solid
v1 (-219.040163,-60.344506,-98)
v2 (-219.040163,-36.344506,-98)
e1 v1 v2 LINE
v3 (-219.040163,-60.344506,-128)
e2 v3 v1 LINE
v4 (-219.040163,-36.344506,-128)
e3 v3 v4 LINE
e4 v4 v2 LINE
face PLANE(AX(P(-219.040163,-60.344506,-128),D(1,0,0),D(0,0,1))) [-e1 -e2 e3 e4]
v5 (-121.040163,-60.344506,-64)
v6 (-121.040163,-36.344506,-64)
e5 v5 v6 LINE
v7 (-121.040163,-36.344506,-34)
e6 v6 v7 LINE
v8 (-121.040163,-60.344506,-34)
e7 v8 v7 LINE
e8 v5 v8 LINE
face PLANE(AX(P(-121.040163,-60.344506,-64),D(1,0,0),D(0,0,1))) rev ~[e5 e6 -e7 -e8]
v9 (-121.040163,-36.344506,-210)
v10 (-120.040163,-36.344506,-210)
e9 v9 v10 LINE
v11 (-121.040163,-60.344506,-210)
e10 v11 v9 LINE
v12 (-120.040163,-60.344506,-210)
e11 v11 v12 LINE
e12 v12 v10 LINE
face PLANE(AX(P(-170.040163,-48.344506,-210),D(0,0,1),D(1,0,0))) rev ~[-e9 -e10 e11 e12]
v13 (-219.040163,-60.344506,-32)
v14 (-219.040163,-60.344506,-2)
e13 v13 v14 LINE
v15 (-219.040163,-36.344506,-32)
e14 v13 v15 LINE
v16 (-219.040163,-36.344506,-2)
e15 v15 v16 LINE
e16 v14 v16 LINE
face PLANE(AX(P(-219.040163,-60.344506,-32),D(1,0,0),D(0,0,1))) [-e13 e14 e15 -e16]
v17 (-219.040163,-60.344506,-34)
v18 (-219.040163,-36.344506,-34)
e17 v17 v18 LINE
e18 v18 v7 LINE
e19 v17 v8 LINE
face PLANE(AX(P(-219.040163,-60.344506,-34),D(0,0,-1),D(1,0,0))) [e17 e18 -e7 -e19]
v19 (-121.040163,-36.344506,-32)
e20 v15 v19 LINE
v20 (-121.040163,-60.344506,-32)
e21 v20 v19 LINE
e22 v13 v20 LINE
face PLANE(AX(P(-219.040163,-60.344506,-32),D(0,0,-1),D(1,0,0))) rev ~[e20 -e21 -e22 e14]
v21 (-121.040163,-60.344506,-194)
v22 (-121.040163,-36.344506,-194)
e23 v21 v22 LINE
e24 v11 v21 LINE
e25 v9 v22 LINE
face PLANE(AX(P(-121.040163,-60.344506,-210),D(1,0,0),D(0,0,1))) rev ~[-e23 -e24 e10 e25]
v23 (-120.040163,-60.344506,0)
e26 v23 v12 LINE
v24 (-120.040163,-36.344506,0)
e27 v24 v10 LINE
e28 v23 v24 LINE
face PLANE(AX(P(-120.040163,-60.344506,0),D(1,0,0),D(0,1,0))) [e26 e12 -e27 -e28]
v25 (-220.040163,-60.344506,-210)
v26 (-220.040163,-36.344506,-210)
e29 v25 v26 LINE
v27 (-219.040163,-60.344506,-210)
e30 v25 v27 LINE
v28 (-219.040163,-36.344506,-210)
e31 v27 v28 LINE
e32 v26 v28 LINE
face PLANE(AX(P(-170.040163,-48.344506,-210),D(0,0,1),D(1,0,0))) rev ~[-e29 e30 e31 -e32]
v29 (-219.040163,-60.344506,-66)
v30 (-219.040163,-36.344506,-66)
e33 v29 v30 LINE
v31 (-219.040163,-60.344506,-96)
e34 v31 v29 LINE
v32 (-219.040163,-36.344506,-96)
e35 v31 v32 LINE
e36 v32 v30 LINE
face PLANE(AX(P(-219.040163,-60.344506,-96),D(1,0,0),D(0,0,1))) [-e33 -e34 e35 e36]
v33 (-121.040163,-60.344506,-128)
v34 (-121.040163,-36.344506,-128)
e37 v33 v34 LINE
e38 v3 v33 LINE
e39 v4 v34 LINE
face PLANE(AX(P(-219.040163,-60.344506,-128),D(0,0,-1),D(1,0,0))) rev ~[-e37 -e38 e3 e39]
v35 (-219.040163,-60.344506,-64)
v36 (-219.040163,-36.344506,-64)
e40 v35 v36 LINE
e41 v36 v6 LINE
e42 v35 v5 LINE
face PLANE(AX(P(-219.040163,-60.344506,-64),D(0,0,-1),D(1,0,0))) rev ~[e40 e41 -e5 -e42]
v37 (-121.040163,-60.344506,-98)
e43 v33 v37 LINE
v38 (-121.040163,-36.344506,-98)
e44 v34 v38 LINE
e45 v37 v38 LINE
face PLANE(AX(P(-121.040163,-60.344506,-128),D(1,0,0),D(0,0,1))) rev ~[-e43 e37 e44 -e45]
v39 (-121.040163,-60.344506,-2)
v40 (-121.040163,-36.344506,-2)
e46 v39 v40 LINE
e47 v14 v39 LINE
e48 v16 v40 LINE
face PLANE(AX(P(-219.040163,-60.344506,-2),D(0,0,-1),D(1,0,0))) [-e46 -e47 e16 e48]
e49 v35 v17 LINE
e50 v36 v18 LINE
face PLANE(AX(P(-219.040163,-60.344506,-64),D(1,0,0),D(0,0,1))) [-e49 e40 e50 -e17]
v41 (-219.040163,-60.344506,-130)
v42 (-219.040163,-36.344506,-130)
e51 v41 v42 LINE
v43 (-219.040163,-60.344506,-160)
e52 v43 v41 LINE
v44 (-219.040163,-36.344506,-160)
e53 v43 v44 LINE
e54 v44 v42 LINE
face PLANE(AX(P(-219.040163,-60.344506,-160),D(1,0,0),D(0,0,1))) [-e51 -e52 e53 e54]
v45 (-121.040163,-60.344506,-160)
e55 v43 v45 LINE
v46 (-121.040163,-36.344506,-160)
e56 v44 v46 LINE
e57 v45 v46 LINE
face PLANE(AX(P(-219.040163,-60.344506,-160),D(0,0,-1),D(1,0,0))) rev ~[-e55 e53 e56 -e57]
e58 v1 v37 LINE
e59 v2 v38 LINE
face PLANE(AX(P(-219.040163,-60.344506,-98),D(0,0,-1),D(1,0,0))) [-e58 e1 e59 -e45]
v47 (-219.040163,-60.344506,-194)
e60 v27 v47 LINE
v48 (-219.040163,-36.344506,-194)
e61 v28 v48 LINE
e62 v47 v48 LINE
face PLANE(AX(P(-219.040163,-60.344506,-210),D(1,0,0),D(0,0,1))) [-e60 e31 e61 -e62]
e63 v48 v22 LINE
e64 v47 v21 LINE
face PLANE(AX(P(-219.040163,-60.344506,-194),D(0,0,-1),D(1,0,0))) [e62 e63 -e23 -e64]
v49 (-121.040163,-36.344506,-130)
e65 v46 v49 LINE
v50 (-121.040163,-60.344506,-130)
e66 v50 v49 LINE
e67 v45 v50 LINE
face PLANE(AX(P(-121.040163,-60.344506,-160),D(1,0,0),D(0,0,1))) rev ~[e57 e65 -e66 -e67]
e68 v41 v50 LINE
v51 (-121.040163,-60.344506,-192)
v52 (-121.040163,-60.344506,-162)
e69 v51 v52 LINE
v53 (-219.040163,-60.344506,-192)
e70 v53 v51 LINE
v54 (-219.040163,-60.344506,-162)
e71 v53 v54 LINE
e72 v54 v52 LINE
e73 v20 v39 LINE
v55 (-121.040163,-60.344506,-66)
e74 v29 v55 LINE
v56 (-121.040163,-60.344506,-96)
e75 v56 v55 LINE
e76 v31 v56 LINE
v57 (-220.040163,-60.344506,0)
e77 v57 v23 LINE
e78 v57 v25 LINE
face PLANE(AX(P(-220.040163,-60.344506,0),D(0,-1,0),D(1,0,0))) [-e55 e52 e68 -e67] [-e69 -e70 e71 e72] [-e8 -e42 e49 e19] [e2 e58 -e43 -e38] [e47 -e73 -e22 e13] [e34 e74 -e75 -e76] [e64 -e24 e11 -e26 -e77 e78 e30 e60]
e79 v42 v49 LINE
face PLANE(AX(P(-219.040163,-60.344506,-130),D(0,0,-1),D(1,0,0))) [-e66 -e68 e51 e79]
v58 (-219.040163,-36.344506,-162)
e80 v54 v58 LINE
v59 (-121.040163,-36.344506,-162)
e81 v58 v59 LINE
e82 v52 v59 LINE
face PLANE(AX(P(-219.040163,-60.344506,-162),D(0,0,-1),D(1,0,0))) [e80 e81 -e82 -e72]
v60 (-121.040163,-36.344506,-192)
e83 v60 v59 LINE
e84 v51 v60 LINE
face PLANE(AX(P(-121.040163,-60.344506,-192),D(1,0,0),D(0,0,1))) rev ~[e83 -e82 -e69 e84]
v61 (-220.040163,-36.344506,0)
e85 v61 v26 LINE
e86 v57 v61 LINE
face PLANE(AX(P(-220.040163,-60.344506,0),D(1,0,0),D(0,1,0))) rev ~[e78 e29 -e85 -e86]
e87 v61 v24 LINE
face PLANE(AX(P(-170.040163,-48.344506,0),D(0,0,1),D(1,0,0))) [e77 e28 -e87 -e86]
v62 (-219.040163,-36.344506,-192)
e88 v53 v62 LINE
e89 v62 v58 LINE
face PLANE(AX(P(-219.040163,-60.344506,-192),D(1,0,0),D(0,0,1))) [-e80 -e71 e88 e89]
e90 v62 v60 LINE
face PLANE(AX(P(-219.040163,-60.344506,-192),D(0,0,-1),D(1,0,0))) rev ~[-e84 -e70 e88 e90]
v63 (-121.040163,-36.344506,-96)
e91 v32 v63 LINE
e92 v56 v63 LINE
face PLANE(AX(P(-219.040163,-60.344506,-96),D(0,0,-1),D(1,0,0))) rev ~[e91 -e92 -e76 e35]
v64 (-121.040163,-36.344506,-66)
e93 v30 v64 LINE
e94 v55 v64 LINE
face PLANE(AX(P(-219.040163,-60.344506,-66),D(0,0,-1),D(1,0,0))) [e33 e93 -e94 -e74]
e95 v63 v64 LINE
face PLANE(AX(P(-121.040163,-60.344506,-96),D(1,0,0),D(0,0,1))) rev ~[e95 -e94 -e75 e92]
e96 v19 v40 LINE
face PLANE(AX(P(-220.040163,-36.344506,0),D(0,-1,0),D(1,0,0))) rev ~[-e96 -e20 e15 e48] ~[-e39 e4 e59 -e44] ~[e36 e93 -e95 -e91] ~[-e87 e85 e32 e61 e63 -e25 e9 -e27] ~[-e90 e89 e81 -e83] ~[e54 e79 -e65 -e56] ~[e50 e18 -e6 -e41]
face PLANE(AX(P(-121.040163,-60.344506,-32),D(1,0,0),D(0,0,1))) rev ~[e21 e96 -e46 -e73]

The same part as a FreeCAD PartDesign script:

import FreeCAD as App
import Part
import Sketcher
Q = App.Units.Quantity


def add_polygon(sketch, points):
    """Adds a closed chain of lines whose ends are joined by coincident constraints."""
    first, n = sketch.GeometryCount, len(points)
    for a, b in zip(points, points[1:] + points[:1]):
        sketch.addGeometry(Part.LineSegment(App.Vector(*a, 0), App.Vector(*b, 0)), False)
    for i in range(n):
        sketch.addConstraint(Sketcher.Constraint("Coincident", first + i, 2, first + (i + 1) % n, 1))

doc = App.newDocument("Part")
body = doc.addObject("PartDesign::Body", "Body")

sketch1 = body.newObject("Sketcher::SketchObject", "Sketch")
sketch1.AttachmentSupport = (doc.getObject("XY_Plane"), [""])
sketch1.MapMode = "FlatFace"
add_polygon(sketch1, [(-220, -36), (-220, -60), (-120, -60), (-120, -36)])
sketch1.addConstraint(Sketcher.Constraint("Vertical", 0))
sketch1.addConstraint(Sketcher.Constraint("Horizontal", 1))
sketch1.addConstraint(Sketcher.Constraint("Vertical", 2))
sketch1.addConstraint(Sketcher.Constraint("Horizontal", 3))
sketch1.addConstraint(Sketcher.Constraint("DistanceX", 1, 1, 1, 2, Q("100 mm")))
sketch1.addConstraint(Sketcher.Constraint("DistanceY", 0, 2, 0, 1, Q("24 mm")))
sketch1.addConstraint(Sketcher.Constraint("DistanceX", 0, 2, -1, 1, Q("220.040163 mm")))
sketch1.addConstraint(Sketcher.Constraint("DistanceY", 0, 2, -1, 1, Q("60.344506 mm")))
pad1 = body.newObject("PartDesign::Pad", "Pad")
pad1.Profile = sketch1
pad1.Length = 210
pad1.Reversed = True

sketch2 = body.newObject("Sketcher::SketchObject", "Sketch001")
sketch2.AttachmentSupport = (doc.getObject("XZ_Plane"), [""])
sketch2.MapMode = "FlatFace"
sketch2.AttachmentOffset = App.Placement(App.Vector(0, 0, 60.344506), App.Rotation())
add_polygon(sketch2, [(-219, -2), (-219, -32), (-121, -32), (-121, -2)])
add_polygon(sketch2, [(-219, -34), (-219, -64), (-121, -64), (-121, -34)])
add_polygon(sketch2, [(-219, -66), (-219, -96), (-121, -96), (-121, -66)])
add_polygon(sketch2, [(-219, -98), (-219, -128), (-121, -128), (-121, -98)])
add_polygon(sketch2, [(-219, -130), (-219, -160), (-121, -160), (-121, -130)])
add_polygon(sketch2, [(-219, -162), (-219, -192), (-121, -192), (-121, -162)])
add_polygon(sketch2, [(-219, -194), (-219, -210), (-121, -210), (-121, -194)])
sketch2.addConstraint(Sketcher.Constraint("Vertical", 0))
sketch2.addConstraint(Sketcher.Constraint("Horizontal", 1))
sketch2.addConstraint(Sketcher.Constraint("Vertical", 2))
sketch2.addConstraint(Sketcher.Constraint("Horizontal", 3))
sketch2.addConstraint(Sketcher.Constraint("Vertical", 4))
sketch2.addConstraint(Sketcher.Constraint("Horizontal", 5))
sketch2.addConstraint(Sketcher.Constraint("Vertical", 6))
sketch2.addConstraint(Sketcher.Constraint("Horizontal", 7))
sketch2.addConstraint(Sketcher.Constraint("Vertical", 8))
sketch2.addConstraint(Sketcher.Constraint("Horizontal", 9))
sketch2.addConstraint(Sketcher.Constraint("Vertical", 10))
sketch2.addConstraint(Sketcher.Constraint("Horizontal", 11))
sketch2.addConstraint(Sketcher.Constraint("Vertical", 12))
sketch2.addConstraint(Sketcher.Constraint("Horizontal", 13))
sketch2.addConstraint(Sketcher.Constraint("Vertical", 14))
sketch2.addConstraint(Sketcher.Constraint("Horizontal", 15))
sketch2.addConstraint(Sketcher.Constraint("Vertical", 16))
sketch2.addConstraint(Sketcher.Constraint("Horizontal", 17))
sketch2.addConstraint(Sketcher.Constraint("Vertical", 18))
sketch2.addConstraint(Sketcher.Constraint("Horizontal", 19))
sketch2.addConstraint(Sketcher.Constraint("Vertical", 20))
sketch2.addConstraint(Sketcher.Constraint("Horizontal", 21))
sketch2.addConstraint(Sketcher.Constraint("Vertical", 22))
sketch2.addConstraint(Sketcher.Constraint("Horizontal", 23))
sketch2.addConstraint(Sketcher.Constraint("Vertical", 24))
sketch2.addConstraint(Sketcher.Constraint("Horizontal", 25))
sketch2.addConstraint(Sketcher.Constraint("Vertical", 26))
sketch2.addConstraint(Sketcher.Constraint("Horizontal", 27))
sketch2.addConstraint(Sketcher.Constraint("Vertical", 3, 2, 4, 2))
sketch2.addConstraint(Sketcher.Constraint("Vertical", 2, 2, 5, 2))
sketch2.addConstraint(Sketcher.Constraint("Vertical", 7, 2, 8, 2))
sketch2.addConstraint(Sketcher.Constraint("Vertical", 6, 2, 9, 2))
sketch2.addConstraint(Sketcher.Constraint("Vertical", 11, 2, 12, 2))
sketch2.addConstraint(Sketcher.Constraint("Vertical", 10, 2, 13, 2))
sketch2.addConstraint(Sketcher.Constraint("Vertical", 15, 2, 16, 2))
sketch2.addConstraint(Sketcher.Constraint("Vertical", 14, 2, 17, 2))
sketch2.addConstraint(Sketcher.Constraint("Vertical", 19, 2, 20, 2))
sketch2.addConstraint(Sketcher.Constraint("Vertical", 18, 2, 21, 2))
sketch2.addConstraint(Sketcher.Constraint("Vertical", 23, 2, 24, 2))
sketch2.addConstraint(Sketcher.Constraint("Vertical", 22, 2, 25, 2))
sketch2.addConstraint(Sketcher.Constraint("Equal", 2, 4))
sketch2.addConstraint(Sketcher.Constraint("Equal", 6, 8))
sketch2.addConstraint(Sketcher.Constraint("Equal", 10, 12))
sketch2.addConstraint(Sketcher.Constraint("Equal", 14, 16))
sketch2.addConstraint(Sketcher.Constraint("Equal", 18, 20))
sketch2.addConstraint(Sketcher.Constraint("DistanceX", 1, 1, 1, 2, Q("98 mm")))
sketch2.addConstraint(Sketcher.Constraint("DistanceY", 0, 2, 0, 1, Q("30 mm")))
sketch2.addConstraint(Sketcher.Constraint("DistanceY", 24, 2, 24, 1, Q("16 mm")))
sketch2.addConstraint(Sketcher.Constraint("DistanceY", 0, 2, -1, 1, Q("32 mm")))
sketch2.addConstraint(Sketcher.Constraint("DistanceY", 4, 2, -1, 1, Q("64 mm")))
sketch2.addConstraint(Sketcher.Constraint("DistanceY", 8, 2, -1, 1, Q("96 mm")))
sketch2.addConstraint(Sketcher.Constraint("DistanceY", 12, 2, -1, 1, Q("128 mm")))
sketch2.addConstraint(Sketcher.Constraint("DistanceY", 16, 2, -1, 1, Q("160 mm")))
sketch2.addConstraint(Sketcher.Constraint("DistanceY", 20, 2, -1, 1, Q("192 mm")))
sketch2.addConstraint(Sketcher.Constraint("DistanceY", 24, 2, -1, 1, Q("210 mm")))
sketch2.addConstraint(Sketcher.Constraint("DistanceX", 0, 2, -1, 1, Q("219.040163 mm")))
pocket1 = body.newObject("PartDesign::Pocket", "Pocket")
pocket1.Profile = sketch2
pocket1.Length = 26

doc.recompute()
